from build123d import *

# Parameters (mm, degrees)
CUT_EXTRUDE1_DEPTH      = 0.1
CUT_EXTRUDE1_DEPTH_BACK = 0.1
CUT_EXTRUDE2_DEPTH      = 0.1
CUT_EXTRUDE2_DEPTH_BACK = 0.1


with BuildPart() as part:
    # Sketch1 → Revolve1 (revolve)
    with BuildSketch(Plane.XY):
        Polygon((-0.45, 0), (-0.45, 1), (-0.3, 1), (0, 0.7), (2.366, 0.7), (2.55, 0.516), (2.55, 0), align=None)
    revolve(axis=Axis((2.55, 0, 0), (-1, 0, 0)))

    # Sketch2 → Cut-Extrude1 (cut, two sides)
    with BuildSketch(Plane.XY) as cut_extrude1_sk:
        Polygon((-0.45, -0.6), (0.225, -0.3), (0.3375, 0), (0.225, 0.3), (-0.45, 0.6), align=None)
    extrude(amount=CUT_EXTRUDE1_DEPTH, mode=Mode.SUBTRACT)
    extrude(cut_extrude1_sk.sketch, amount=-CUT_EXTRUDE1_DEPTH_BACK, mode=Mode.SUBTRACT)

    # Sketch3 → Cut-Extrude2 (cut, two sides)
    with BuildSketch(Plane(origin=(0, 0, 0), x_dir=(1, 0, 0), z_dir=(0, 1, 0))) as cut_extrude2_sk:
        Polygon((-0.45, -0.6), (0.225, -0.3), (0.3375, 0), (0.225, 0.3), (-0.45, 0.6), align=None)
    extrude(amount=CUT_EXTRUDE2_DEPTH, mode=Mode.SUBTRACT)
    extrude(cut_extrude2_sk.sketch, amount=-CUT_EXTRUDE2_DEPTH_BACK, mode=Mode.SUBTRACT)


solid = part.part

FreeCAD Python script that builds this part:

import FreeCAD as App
import Part
import Sketcher

V = App.Vector
Q = App.Units.Quantity


def add_polygon(sketch, points):
    """Adds a closed chain of lines whose ends are joined by coincident constraints."""
    first, n = sketch.GeometryCount, len(points)
    for a, b in zip(points, points[1:] + points[:1]):
        sketch.addGeometry(Part.LineSegment(App.Vector(*a, 0), App.Vector(*b, 0)), False)
    for i in range(n):
        sketch.addConstraint(Sketcher.Constraint("Coincident", first + i, 2, first + (i + 1) % n, 1))

doc = App.newDocument("Part")
body = doc.addObject("PartDesign::Body", "Body")

# Sketch on XY plane
sketch1 = doc.addObject("Sketcher::SketchObject", "Sketch")
body.addObject(sketch1)
sketch1.AttachmentSupport = (doc.XY_Plane, [""])
sketch1.MapMode = "FlatFace"
add_polygon(sketch1, [(-0.45, 1), (-0.45, 0), (2.55, 0), (2.55, 0.516), (2.366, 0.7), (0, 0.7), (-0.3, 1)])  # lines 0-6
sketch1.addConstraint([
    Sketcher.Constraint("Vertical", 0),
    Sketcher.Constraint("Horizontal", 1),
    Sketcher.Constraint("Vertical", 2),
    Sketcher.Constraint("Horizontal", 4),
    Sketcher.Constraint("Horizontal", 6),
    Sketcher.Constraint("PointOnObject", 0, 2, -1),
    Sketcher.Constraint("PointOnObject", 4, 2, -2),
    Sketcher.Constraint("Parallel", 3, 5),
    Sketcher.Constraint("DistanceX", 1, 1, 1, 2, Q("3 mm")),
    Sketcher.Constraint("DistanceY", 0, 2, 0, 1, Q("1 mm")),
    Sketcher.Constraint("Angle", 3, Q("135 deg")),
    Sketcher.Constraint("DistanceX", 6, 2, 6, 1, Q("0.15 mm")),
    Sketcher.Constraint("DistanceY", -1, 1, 3, 2, Q("0.7 mm")),
    Sketcher.Constraint("DistanceX", 4, 2, 4, 1, Q("2.366 mm")),
])
revolution = doc.addObject("PartDesign::Revolution", "Revolution")
body.addObject(revolution)
revolution.Profile = sketch1
revolution.ReferenceAxis = (sketch1, ["H_Axis"])
revolution.Angle = 360

# Sketch on XY plane
sketch2 = doc.addObject("Sketcher::SketchObject", "Sketch001")
body.addObject(sketch2)
sketch2.AttachmentSupport = (doc.XY_Plane, [""])
sketch2.MapMode = "FlatFace"
add_polygon(sketch2, [(-0.45, -0.6), (0.225, -0.3), (0.3375, 0), (0.225, 0.3), (-0.45, 0.6)])  # lines 0-4
sketch2.addConstraint([
    Sketcher.Constraint("Vertical", 4),
    Sketcher.Constraint("Symmetric", 0, 2, 2, 2, -1),
    Sketcher.Constraint("PointOnObject", 1, 2, -1),
    Sketcher.Constraint("Equal", 0, 3),
    Sketcher.Constraint("DistanceY", 4, 2, 4, 1, Q("1.2 mm")),
    Sketcher.Constraint("DistanceY", 0, 2, -1, 1, Q("0.3 mm")),
    Sketcher.Constraint("DistanceX", 3, 2, -1, 1, Q("0.45 mm")),
    Sketcher.Constraint("DistanceX", -1, 1, 0, 2, Q("0.225 mm")),
    Sketcher.Constraint("Distance", 1, Q("0.3204 mm")),
])
pocket1 = doc.addObject("PartDesign::Pocket", "Pocket")
body.addObject(pocket1)
pocket1.Profile = sketch2
pocket1.Type = "TwoLengths"
pocket1.Length = 0.1
pocket1.Length2 = 0.1
pocket1.Reversed = True

# Sketch on XZ plane
sketch3 = doc.addObject("Sketcher::SketchObject", "Sketch002")
body.addObject(sketch3)
sketch3.AttachmentSupport = (doc.XZ_Plane, [""])
sketch3.MapMode = "FlatFace"
add_polygon(sketch3, [(-0.45, 0.6), (0.225, 0.3), (0.3375, 0), (0.225, -0.3), (-0.45, -0.6)])  # lines 0-4
sketch3.addConstraint([
    Sketcher.Constraint("Vertical", 4),
    Sketcher.Constraint("Symmetric", 0, 2, 2, 2, -1),
    Sketcher.Constraint("PointOnObject", 1, 2, -1),
    Sketcher.Constraint("Equal", 0, 3),
    Sketcher.Constraint("DistanceY", 4, 1, 4, 2, Q("1.2 mm")),
    Sketcher.Constraint("DistanceY", -1, 1, 0, 2, Q("0.3 mm")),
    Sketcher.Constraint("DistanceX", 3, 2, -1, 1, Q("0.45 mm")),
    Sketcher.Constraint("DistanceX", -1, 1, 0, 2, Q("0.225 mm")),
    Sketcher.Constraint("Distance", 1, Q("0.3204 mm")),
])
pocket2 = doc.addObject("PartDesign::Pocket", "Pocket001")
body.addObject(pocket2)
pocket2.Profile = sketch3
pocket2.Type = "TwoLengths"
pocket2.Length = 0.1
pocket2.Length2 = 0.1

doc.recompute()
